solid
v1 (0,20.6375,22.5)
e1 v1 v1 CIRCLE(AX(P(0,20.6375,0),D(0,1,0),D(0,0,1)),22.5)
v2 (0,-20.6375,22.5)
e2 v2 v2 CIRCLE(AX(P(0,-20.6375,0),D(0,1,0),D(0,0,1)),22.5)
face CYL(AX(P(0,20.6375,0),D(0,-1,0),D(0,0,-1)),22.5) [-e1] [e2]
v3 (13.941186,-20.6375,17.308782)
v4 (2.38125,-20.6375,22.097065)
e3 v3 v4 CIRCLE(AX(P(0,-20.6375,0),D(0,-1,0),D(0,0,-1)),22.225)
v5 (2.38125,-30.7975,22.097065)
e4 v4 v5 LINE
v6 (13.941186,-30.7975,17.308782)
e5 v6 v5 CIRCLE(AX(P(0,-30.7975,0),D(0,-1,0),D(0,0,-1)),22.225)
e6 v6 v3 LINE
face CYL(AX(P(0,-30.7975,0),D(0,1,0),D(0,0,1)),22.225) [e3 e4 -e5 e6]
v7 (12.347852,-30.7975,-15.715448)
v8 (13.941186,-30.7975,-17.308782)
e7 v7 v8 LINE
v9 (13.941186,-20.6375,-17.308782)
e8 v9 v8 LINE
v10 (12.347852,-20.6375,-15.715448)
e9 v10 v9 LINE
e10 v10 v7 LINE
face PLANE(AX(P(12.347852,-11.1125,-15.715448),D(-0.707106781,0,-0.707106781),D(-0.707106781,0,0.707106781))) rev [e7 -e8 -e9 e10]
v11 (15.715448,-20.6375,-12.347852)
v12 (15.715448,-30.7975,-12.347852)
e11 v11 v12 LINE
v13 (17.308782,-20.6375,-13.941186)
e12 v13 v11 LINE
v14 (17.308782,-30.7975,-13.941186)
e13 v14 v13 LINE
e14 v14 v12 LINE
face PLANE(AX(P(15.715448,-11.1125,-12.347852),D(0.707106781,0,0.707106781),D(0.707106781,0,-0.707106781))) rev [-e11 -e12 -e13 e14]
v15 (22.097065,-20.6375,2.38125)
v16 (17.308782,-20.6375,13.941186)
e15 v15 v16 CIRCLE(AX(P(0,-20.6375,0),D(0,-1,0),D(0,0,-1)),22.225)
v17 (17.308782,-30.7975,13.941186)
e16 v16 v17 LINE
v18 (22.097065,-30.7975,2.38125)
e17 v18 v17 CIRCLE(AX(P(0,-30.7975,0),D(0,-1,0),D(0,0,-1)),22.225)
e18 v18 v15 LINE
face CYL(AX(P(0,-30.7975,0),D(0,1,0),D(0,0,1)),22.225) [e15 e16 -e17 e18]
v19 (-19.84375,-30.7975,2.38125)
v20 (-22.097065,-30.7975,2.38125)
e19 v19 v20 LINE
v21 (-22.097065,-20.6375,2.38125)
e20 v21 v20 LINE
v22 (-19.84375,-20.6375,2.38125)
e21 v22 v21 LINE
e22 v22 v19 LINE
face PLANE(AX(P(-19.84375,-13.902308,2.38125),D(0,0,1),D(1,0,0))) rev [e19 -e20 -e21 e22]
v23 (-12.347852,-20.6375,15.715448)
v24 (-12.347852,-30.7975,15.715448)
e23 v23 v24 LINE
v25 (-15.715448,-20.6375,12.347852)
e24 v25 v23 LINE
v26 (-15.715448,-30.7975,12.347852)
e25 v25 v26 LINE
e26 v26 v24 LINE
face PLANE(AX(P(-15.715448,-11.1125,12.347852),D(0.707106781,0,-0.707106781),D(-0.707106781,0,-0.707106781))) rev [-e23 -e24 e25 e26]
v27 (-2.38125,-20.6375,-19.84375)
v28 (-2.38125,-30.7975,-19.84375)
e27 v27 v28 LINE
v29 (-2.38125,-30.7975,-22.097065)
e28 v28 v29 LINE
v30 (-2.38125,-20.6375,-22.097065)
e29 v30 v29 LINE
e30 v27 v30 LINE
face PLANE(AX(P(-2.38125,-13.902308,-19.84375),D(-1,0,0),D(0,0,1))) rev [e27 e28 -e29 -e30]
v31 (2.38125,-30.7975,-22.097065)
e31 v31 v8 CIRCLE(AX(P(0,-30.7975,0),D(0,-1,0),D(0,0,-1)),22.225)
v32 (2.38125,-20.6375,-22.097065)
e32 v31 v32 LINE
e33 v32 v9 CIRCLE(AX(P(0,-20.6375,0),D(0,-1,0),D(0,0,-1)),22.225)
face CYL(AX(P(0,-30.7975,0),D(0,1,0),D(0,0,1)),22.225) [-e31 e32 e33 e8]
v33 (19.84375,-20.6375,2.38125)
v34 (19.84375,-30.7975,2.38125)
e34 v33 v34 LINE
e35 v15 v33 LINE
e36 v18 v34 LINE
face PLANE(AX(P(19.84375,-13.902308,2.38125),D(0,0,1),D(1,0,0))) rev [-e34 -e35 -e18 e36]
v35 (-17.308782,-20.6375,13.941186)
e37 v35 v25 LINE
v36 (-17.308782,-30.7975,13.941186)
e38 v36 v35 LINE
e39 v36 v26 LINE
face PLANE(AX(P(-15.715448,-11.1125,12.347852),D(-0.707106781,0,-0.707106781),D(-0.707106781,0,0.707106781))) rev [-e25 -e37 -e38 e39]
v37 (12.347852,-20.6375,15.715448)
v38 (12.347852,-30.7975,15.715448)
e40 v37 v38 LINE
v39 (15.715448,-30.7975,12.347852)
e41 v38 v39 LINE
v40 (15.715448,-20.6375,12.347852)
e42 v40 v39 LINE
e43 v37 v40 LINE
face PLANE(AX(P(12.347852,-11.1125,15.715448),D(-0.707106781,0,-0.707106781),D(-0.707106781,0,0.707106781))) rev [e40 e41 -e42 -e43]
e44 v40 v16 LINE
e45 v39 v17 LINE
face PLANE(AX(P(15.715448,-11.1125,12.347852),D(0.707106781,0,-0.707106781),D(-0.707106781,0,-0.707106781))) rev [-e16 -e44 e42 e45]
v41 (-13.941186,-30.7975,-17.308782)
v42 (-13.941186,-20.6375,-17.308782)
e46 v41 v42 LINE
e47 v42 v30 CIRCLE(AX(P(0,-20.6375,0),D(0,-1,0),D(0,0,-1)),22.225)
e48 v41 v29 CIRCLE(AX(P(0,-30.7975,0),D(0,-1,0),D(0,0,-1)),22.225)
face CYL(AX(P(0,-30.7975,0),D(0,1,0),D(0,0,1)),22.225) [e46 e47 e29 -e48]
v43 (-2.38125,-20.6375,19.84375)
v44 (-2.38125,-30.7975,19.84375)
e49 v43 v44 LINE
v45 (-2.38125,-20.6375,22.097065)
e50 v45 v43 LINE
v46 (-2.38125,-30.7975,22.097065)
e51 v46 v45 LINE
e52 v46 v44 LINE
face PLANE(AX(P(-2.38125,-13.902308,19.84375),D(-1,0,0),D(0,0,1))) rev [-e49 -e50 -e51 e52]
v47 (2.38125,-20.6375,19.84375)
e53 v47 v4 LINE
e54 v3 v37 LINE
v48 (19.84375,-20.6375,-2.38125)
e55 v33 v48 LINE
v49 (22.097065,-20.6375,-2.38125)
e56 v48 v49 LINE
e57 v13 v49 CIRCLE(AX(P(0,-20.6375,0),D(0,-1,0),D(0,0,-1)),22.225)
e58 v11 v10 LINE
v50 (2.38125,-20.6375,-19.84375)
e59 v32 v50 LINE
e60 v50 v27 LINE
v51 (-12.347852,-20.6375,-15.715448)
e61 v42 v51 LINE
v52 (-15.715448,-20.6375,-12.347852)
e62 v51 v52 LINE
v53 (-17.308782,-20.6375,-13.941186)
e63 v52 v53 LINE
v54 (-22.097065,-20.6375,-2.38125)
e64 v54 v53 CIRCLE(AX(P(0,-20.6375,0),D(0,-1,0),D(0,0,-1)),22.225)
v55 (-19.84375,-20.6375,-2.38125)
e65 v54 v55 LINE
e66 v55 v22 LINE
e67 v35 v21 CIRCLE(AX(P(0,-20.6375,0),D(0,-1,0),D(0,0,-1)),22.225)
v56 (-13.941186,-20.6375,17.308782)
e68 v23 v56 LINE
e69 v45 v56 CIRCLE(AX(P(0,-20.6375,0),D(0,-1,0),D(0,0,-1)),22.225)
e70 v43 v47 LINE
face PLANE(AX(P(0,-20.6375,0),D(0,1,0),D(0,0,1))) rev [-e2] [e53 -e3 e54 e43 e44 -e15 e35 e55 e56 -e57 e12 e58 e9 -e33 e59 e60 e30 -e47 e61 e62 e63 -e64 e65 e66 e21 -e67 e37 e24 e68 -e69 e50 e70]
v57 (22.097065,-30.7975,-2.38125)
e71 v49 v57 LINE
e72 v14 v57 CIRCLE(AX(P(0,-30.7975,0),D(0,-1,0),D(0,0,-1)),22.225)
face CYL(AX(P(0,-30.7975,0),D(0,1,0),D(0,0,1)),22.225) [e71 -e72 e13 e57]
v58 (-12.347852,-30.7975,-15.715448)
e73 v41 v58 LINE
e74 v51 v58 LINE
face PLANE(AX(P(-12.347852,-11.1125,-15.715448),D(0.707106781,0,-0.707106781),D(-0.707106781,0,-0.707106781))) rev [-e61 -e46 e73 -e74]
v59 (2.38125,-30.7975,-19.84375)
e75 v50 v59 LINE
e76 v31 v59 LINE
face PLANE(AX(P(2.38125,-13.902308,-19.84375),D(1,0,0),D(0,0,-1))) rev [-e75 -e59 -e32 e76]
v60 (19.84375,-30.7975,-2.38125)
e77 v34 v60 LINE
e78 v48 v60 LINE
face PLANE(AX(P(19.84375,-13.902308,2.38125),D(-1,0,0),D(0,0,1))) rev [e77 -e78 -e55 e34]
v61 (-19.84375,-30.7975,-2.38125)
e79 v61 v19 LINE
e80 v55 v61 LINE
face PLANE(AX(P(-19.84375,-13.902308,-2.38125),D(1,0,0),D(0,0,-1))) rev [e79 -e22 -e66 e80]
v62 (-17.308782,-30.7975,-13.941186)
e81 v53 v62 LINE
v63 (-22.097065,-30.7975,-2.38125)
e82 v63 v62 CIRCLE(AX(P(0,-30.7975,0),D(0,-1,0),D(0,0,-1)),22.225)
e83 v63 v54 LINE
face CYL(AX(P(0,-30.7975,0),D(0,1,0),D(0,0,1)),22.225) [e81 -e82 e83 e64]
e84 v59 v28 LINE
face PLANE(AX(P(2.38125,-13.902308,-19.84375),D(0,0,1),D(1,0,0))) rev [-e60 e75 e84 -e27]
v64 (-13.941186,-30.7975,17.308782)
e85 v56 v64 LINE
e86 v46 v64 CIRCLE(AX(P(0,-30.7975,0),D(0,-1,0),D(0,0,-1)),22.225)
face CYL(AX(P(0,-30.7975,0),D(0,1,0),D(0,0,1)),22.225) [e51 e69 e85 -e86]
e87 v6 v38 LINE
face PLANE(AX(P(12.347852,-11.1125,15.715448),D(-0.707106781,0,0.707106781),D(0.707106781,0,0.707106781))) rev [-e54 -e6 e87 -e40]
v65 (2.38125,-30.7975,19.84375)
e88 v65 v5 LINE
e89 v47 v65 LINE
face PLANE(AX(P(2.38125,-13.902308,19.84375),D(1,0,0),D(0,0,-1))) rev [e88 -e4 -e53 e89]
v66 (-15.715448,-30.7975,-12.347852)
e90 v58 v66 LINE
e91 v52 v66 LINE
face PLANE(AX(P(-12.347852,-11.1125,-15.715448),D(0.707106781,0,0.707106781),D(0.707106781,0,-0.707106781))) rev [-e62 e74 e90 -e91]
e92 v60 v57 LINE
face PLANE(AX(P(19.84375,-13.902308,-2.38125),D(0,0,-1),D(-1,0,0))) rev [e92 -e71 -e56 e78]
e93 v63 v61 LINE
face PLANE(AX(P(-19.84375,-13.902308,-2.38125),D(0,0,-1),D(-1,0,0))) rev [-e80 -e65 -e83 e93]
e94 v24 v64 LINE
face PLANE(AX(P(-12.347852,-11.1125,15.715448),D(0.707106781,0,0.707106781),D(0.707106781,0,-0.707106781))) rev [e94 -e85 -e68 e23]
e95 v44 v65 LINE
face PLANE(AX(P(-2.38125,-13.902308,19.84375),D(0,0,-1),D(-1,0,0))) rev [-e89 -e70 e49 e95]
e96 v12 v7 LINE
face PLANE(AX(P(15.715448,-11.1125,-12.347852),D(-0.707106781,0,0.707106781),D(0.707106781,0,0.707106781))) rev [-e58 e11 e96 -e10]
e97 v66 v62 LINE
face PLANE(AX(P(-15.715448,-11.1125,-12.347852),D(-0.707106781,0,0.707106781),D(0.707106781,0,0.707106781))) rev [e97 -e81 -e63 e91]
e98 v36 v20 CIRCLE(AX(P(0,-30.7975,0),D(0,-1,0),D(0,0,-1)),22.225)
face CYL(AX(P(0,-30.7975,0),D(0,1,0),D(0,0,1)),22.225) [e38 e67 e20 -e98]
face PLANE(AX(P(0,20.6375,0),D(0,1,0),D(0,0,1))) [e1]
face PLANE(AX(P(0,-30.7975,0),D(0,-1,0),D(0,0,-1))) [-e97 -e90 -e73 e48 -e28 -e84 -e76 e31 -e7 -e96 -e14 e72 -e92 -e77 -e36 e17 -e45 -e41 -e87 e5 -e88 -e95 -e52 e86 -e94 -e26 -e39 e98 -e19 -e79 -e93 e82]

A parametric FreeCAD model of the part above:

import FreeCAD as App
import Part
import Sketcher
Q = App.Units.Quantity

doc = App.newDocument("Part")
body = doc.addObject("PartDesign::Body", "Body")

# Sketch on XZ plane
sketch1 = body.newObject("Sketcher::SketchObject", "Sketch")
sketch1.AttachmentSupport = (doc.getObject("XZ_Plane"), [""])
sketch1.MapMode = "FlatFace"
sketch1.addGeometry(Part.Circle(App.Vector(0, 0, 0), App.Vector(0, 0, 1), 22), False)
sketch1.addConstraint([
    Sketcher.Constraint("Coincident", 0, 3, -1, 1),
    Sketcher.Constraint("Diameter", 0, 45.0),
])
pad1 = body.newObject("PartDesign::Pad", "Pad")
pad1.Profile = sketch1
pad1.Length = Q("1.625 in")
pad1.Midplane = True

# Sketch on XZ plane
sketch2 = body.newObject("Sketcher::SketchObject", "Sketch001")
sketch2.AttachmentSupport = (doc.getObject("XZ_Plane"), [""])
sketch2.MapMode = "FlatFace"
sketch2.AttachmentOffset = App.Placement(App.Vector(0, 0, 0.8125 * 25.4), App.Rotation())
sketch2.addGeometry(Part.Circle(App.Vector(0, 0, 0), App.Vector(0, 0, 1), 22), False)
sketch2.addConstraint([
    Sketcher.Constraint("Coincident", 0, 3, -1, 1),
    Sketcher.Constraint("Diameter", 0, Q("1.75 in")),
])
pad2 = body.newObject("PartDesign::Pad", "Pad001")
pad2.Profile = sketch2
pad2.Length = Q("0.4 in")

# Sketch on XZ plane
sketch3 = body.newObject("Sketcher::SketchObject", "Sketch002")
sketch3.AttachmentSupport = (doc.getObject("XZ_Plane"), [""])
sketch3.MapMode = "FlatFace"
sketch3.AttachmentOffset = App.Placement(App.Vector(0, 0, 1.2125 * 25.4), App.Rotation())
sketch3.addGeometry([
    Part.LineSegment(App.Vector(-2.4, 24.6, 0), App.Vector(-2.4, 19.8, 0)),
    Part.LineSegment(App.Vector(-2.4, 19.8, 0), App.Vector(2.4, 19.8, 0)),
    Part.LineSegment(App.Vector(2.4, 19.8, 0), App.Vector(2.4, 24.6, 0)),
    Part.LineSegment(App.Vector(2.4, 24.6, 0), App.Vector(-2.4, 24.6, 0)),
], False)
sketch3.addConstraint([
    Sketcher.Constraint("Coincident", 0, 2, 1, 1),
    Sketcher.Constraint("Coincident", 1, 2, 2, 1),
    Sketcher.Constraint("Coincident", 2, 2, 3, 1),
    Sketcher.Constraint("Coincident", 3, 2, 0, 1),
    Sketcher.Constraint("Vertical", 0),
    Sketcher.Constraint("Horizontal", 1),
    Sketcher.Constraint("Vertical", 2),
    Sketcher.Constraint("Horizontal", 3),
    Sketcher.Constraint("Equal", 3, 0),
    Sketcher.Constraint("DistanceX", 1, 1, 1, 2, Q("0.1875 in")),
    Sketcher.Constraint("DistanceX", 0, 2, -1, 1, Q("0.09375 in")),
    Sketcher.Constraint("DistanceY", -1, 1, 0, 2, Q("0.78125 in")),
])
pocket1 = body.newObject("PartDesign::Pocket", "Pocket")
pocket1.Profile = sketch3
pocket1.Length = Q("0.4 in")
doc.recompute()

polarpattern = body.newObject("PartDesign::PolarPattern", "PolarPattern")
polarpattern.Originals = [pocket1]
polarpattern.Axis = (doc.getObject("Y_Axis"), [""])
polarpattern.Angle = 360
polarpattern.Occurrences = 8
body.Tip = polarpattern

doc.recompute()
